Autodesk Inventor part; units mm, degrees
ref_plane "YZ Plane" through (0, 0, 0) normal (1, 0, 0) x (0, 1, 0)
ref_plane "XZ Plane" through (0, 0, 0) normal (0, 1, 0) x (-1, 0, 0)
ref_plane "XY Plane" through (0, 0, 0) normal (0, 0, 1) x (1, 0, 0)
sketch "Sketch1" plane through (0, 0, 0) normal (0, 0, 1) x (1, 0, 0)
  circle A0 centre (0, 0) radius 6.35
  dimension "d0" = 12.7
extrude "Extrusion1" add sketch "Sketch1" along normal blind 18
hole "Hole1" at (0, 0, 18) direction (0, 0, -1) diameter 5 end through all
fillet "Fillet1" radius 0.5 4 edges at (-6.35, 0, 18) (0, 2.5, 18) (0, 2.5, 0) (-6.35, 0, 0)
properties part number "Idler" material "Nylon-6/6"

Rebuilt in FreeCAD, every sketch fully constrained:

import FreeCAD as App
import Part
import Sketcher
from FreeCAD import Vector


def edges_at(feature, points):
    """Names of the edges that pass closest to the given points."""
    edges = feature.Shape.Edges
    near = lambda p: min(range(len(edges)), key=lambda i: edges[i].distToShape(Part.Vertex(*p))[0])
    return sorted({f"Edge{near(p) + 1}" for p in points})

doc = App.newDocument("Part")
body = doc.addObject("PartDesign::Body", "Body")

sketch1 = body.newObject("Sketcher::SketchObject", "Sketch")
sketch1.AttachmentSupport = (doc.getObject("XY_Plane"), [""])
sketch1.MapMode = "FlatFace"
sketch1.addGeometry(Part.Circle(Vector(0, 0, 0), Vector(0, 0, 1), 6), False)
sketch1.addConstraint([
    Sketcher.Constraint("Coincident", 0, 3, -1, 1),
    Sketcher.Constraint("Diameter", 0, 12.7),
])
pad1 = body.newObject("PartDesign::Pad", "Pad")
pad1.Profile = sketch1
pad1.Length = 18

sketch2 = body.newObject("Sketcher::SketchObject", "Sketch001")
sketch2.AttachmentSupport = (doc.getObject("XY_Plane"), [""])
sketch2.MapMode = "FlatFace"
sketch2.AttachmentOffset = App.Placement(Vector(0, 0, 18), App.Rotation())
sketch2.addGeometry(Part.Circle(Vector(0, 0, 0), Vector(0, 0, 1), 2.5), False)
sketch2.addConstraint([
    Sketcher.Constraint("Coincident", 0, 3, -1, 1),
    Sketcher.Constraint("Diameter", 0, 5.0),
])
doc.recompute()
hole = body.newObject("PartDesign::Hole", "Hole")
hole.Profile = sketch2
hole.ThreadType = "None"
hole.Diameter = 5
hole.DepthType = "ThroughAll"
doc.recompute()

fillet = body.newObject("PartDesign::Fillet", "Fillet")
fillet.Base = (hole, edges_at(hole, [
    (-6.35, 0, 18),
    (0, 2.5, 18),
    (0, 2.5, 0),
    (-6.35, 0, 0),
]))
fillet.Radius = 0.5

doc.recompute()
